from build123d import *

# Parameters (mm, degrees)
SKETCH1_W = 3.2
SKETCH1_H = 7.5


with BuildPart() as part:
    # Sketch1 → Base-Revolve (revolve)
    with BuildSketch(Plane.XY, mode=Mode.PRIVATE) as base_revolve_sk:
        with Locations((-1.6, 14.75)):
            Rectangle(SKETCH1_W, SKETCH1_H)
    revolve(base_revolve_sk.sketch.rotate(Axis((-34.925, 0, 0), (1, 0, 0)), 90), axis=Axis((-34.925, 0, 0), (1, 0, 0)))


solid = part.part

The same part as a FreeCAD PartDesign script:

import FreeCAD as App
import Part
import Sketcher

V = App.Vector


def add_polygon(sketch, points):
    """Adds a closed chain of lines whose ends are joined by coincident constraints."""
    first, n = sketch.GeometryCount, len(points)
    for a, b in zip(points, points[1:] + points[:1]):
        sketch.addGeometry(Part.LineSegment(App.Vector(*a, 0), App.Vector(*b, 0)), False)
    for i in range(n):
        sketch.addConstraint(Sketcher.Constraint("Coincident", first + i, 2, first + (i + 1) % n, 1))

doc = App.newDocument("Part")
body = doc.addObject("PartDesign::Body", "Body")

# Sketch on XY plane
sketch1 = body.newObject("Sketcher::SketchObject", "Sketch")
sketch1.AttachmentSupport = (doc.getObject("XY_Plane"), [""])
sketch1.MapMode = "FlatFace"
add_polygon(sketch1, [(-3.2, 18.5), (-3.2, 11), (0, 11), (0, 18.5)])  # lines 0-3
sketch1.addConstraint([
    Sketcher.Constraint("Vertical", 0),
    Sketcher.Constraint("Horizontal", 1),
    Sketcher.Constraint("Vertical", 2),
    Sketcher.Constraint("Horizontal", 3),
    Sketcher.Constraint("PointOnObject", 1, 2, -2),
    Sketcher.Constraint("DistanceX", 1, 1, 1, 2, 3.2),
    Sketcher.Constraint("DistanceY", 0, 2, 0, 1, 7.5),
    Sketcher.Constraint("DistanceY", -1, 1, 0, 2, 11.0),
])
revolution = body.newObject("PartDesign::Revolution", "Revolution")
revolution.Profile = sketch1
revolution.ReferenceAxis = (sketch1, ["H_Axis"])
revolution.Angle = 360

doc.recompute()
